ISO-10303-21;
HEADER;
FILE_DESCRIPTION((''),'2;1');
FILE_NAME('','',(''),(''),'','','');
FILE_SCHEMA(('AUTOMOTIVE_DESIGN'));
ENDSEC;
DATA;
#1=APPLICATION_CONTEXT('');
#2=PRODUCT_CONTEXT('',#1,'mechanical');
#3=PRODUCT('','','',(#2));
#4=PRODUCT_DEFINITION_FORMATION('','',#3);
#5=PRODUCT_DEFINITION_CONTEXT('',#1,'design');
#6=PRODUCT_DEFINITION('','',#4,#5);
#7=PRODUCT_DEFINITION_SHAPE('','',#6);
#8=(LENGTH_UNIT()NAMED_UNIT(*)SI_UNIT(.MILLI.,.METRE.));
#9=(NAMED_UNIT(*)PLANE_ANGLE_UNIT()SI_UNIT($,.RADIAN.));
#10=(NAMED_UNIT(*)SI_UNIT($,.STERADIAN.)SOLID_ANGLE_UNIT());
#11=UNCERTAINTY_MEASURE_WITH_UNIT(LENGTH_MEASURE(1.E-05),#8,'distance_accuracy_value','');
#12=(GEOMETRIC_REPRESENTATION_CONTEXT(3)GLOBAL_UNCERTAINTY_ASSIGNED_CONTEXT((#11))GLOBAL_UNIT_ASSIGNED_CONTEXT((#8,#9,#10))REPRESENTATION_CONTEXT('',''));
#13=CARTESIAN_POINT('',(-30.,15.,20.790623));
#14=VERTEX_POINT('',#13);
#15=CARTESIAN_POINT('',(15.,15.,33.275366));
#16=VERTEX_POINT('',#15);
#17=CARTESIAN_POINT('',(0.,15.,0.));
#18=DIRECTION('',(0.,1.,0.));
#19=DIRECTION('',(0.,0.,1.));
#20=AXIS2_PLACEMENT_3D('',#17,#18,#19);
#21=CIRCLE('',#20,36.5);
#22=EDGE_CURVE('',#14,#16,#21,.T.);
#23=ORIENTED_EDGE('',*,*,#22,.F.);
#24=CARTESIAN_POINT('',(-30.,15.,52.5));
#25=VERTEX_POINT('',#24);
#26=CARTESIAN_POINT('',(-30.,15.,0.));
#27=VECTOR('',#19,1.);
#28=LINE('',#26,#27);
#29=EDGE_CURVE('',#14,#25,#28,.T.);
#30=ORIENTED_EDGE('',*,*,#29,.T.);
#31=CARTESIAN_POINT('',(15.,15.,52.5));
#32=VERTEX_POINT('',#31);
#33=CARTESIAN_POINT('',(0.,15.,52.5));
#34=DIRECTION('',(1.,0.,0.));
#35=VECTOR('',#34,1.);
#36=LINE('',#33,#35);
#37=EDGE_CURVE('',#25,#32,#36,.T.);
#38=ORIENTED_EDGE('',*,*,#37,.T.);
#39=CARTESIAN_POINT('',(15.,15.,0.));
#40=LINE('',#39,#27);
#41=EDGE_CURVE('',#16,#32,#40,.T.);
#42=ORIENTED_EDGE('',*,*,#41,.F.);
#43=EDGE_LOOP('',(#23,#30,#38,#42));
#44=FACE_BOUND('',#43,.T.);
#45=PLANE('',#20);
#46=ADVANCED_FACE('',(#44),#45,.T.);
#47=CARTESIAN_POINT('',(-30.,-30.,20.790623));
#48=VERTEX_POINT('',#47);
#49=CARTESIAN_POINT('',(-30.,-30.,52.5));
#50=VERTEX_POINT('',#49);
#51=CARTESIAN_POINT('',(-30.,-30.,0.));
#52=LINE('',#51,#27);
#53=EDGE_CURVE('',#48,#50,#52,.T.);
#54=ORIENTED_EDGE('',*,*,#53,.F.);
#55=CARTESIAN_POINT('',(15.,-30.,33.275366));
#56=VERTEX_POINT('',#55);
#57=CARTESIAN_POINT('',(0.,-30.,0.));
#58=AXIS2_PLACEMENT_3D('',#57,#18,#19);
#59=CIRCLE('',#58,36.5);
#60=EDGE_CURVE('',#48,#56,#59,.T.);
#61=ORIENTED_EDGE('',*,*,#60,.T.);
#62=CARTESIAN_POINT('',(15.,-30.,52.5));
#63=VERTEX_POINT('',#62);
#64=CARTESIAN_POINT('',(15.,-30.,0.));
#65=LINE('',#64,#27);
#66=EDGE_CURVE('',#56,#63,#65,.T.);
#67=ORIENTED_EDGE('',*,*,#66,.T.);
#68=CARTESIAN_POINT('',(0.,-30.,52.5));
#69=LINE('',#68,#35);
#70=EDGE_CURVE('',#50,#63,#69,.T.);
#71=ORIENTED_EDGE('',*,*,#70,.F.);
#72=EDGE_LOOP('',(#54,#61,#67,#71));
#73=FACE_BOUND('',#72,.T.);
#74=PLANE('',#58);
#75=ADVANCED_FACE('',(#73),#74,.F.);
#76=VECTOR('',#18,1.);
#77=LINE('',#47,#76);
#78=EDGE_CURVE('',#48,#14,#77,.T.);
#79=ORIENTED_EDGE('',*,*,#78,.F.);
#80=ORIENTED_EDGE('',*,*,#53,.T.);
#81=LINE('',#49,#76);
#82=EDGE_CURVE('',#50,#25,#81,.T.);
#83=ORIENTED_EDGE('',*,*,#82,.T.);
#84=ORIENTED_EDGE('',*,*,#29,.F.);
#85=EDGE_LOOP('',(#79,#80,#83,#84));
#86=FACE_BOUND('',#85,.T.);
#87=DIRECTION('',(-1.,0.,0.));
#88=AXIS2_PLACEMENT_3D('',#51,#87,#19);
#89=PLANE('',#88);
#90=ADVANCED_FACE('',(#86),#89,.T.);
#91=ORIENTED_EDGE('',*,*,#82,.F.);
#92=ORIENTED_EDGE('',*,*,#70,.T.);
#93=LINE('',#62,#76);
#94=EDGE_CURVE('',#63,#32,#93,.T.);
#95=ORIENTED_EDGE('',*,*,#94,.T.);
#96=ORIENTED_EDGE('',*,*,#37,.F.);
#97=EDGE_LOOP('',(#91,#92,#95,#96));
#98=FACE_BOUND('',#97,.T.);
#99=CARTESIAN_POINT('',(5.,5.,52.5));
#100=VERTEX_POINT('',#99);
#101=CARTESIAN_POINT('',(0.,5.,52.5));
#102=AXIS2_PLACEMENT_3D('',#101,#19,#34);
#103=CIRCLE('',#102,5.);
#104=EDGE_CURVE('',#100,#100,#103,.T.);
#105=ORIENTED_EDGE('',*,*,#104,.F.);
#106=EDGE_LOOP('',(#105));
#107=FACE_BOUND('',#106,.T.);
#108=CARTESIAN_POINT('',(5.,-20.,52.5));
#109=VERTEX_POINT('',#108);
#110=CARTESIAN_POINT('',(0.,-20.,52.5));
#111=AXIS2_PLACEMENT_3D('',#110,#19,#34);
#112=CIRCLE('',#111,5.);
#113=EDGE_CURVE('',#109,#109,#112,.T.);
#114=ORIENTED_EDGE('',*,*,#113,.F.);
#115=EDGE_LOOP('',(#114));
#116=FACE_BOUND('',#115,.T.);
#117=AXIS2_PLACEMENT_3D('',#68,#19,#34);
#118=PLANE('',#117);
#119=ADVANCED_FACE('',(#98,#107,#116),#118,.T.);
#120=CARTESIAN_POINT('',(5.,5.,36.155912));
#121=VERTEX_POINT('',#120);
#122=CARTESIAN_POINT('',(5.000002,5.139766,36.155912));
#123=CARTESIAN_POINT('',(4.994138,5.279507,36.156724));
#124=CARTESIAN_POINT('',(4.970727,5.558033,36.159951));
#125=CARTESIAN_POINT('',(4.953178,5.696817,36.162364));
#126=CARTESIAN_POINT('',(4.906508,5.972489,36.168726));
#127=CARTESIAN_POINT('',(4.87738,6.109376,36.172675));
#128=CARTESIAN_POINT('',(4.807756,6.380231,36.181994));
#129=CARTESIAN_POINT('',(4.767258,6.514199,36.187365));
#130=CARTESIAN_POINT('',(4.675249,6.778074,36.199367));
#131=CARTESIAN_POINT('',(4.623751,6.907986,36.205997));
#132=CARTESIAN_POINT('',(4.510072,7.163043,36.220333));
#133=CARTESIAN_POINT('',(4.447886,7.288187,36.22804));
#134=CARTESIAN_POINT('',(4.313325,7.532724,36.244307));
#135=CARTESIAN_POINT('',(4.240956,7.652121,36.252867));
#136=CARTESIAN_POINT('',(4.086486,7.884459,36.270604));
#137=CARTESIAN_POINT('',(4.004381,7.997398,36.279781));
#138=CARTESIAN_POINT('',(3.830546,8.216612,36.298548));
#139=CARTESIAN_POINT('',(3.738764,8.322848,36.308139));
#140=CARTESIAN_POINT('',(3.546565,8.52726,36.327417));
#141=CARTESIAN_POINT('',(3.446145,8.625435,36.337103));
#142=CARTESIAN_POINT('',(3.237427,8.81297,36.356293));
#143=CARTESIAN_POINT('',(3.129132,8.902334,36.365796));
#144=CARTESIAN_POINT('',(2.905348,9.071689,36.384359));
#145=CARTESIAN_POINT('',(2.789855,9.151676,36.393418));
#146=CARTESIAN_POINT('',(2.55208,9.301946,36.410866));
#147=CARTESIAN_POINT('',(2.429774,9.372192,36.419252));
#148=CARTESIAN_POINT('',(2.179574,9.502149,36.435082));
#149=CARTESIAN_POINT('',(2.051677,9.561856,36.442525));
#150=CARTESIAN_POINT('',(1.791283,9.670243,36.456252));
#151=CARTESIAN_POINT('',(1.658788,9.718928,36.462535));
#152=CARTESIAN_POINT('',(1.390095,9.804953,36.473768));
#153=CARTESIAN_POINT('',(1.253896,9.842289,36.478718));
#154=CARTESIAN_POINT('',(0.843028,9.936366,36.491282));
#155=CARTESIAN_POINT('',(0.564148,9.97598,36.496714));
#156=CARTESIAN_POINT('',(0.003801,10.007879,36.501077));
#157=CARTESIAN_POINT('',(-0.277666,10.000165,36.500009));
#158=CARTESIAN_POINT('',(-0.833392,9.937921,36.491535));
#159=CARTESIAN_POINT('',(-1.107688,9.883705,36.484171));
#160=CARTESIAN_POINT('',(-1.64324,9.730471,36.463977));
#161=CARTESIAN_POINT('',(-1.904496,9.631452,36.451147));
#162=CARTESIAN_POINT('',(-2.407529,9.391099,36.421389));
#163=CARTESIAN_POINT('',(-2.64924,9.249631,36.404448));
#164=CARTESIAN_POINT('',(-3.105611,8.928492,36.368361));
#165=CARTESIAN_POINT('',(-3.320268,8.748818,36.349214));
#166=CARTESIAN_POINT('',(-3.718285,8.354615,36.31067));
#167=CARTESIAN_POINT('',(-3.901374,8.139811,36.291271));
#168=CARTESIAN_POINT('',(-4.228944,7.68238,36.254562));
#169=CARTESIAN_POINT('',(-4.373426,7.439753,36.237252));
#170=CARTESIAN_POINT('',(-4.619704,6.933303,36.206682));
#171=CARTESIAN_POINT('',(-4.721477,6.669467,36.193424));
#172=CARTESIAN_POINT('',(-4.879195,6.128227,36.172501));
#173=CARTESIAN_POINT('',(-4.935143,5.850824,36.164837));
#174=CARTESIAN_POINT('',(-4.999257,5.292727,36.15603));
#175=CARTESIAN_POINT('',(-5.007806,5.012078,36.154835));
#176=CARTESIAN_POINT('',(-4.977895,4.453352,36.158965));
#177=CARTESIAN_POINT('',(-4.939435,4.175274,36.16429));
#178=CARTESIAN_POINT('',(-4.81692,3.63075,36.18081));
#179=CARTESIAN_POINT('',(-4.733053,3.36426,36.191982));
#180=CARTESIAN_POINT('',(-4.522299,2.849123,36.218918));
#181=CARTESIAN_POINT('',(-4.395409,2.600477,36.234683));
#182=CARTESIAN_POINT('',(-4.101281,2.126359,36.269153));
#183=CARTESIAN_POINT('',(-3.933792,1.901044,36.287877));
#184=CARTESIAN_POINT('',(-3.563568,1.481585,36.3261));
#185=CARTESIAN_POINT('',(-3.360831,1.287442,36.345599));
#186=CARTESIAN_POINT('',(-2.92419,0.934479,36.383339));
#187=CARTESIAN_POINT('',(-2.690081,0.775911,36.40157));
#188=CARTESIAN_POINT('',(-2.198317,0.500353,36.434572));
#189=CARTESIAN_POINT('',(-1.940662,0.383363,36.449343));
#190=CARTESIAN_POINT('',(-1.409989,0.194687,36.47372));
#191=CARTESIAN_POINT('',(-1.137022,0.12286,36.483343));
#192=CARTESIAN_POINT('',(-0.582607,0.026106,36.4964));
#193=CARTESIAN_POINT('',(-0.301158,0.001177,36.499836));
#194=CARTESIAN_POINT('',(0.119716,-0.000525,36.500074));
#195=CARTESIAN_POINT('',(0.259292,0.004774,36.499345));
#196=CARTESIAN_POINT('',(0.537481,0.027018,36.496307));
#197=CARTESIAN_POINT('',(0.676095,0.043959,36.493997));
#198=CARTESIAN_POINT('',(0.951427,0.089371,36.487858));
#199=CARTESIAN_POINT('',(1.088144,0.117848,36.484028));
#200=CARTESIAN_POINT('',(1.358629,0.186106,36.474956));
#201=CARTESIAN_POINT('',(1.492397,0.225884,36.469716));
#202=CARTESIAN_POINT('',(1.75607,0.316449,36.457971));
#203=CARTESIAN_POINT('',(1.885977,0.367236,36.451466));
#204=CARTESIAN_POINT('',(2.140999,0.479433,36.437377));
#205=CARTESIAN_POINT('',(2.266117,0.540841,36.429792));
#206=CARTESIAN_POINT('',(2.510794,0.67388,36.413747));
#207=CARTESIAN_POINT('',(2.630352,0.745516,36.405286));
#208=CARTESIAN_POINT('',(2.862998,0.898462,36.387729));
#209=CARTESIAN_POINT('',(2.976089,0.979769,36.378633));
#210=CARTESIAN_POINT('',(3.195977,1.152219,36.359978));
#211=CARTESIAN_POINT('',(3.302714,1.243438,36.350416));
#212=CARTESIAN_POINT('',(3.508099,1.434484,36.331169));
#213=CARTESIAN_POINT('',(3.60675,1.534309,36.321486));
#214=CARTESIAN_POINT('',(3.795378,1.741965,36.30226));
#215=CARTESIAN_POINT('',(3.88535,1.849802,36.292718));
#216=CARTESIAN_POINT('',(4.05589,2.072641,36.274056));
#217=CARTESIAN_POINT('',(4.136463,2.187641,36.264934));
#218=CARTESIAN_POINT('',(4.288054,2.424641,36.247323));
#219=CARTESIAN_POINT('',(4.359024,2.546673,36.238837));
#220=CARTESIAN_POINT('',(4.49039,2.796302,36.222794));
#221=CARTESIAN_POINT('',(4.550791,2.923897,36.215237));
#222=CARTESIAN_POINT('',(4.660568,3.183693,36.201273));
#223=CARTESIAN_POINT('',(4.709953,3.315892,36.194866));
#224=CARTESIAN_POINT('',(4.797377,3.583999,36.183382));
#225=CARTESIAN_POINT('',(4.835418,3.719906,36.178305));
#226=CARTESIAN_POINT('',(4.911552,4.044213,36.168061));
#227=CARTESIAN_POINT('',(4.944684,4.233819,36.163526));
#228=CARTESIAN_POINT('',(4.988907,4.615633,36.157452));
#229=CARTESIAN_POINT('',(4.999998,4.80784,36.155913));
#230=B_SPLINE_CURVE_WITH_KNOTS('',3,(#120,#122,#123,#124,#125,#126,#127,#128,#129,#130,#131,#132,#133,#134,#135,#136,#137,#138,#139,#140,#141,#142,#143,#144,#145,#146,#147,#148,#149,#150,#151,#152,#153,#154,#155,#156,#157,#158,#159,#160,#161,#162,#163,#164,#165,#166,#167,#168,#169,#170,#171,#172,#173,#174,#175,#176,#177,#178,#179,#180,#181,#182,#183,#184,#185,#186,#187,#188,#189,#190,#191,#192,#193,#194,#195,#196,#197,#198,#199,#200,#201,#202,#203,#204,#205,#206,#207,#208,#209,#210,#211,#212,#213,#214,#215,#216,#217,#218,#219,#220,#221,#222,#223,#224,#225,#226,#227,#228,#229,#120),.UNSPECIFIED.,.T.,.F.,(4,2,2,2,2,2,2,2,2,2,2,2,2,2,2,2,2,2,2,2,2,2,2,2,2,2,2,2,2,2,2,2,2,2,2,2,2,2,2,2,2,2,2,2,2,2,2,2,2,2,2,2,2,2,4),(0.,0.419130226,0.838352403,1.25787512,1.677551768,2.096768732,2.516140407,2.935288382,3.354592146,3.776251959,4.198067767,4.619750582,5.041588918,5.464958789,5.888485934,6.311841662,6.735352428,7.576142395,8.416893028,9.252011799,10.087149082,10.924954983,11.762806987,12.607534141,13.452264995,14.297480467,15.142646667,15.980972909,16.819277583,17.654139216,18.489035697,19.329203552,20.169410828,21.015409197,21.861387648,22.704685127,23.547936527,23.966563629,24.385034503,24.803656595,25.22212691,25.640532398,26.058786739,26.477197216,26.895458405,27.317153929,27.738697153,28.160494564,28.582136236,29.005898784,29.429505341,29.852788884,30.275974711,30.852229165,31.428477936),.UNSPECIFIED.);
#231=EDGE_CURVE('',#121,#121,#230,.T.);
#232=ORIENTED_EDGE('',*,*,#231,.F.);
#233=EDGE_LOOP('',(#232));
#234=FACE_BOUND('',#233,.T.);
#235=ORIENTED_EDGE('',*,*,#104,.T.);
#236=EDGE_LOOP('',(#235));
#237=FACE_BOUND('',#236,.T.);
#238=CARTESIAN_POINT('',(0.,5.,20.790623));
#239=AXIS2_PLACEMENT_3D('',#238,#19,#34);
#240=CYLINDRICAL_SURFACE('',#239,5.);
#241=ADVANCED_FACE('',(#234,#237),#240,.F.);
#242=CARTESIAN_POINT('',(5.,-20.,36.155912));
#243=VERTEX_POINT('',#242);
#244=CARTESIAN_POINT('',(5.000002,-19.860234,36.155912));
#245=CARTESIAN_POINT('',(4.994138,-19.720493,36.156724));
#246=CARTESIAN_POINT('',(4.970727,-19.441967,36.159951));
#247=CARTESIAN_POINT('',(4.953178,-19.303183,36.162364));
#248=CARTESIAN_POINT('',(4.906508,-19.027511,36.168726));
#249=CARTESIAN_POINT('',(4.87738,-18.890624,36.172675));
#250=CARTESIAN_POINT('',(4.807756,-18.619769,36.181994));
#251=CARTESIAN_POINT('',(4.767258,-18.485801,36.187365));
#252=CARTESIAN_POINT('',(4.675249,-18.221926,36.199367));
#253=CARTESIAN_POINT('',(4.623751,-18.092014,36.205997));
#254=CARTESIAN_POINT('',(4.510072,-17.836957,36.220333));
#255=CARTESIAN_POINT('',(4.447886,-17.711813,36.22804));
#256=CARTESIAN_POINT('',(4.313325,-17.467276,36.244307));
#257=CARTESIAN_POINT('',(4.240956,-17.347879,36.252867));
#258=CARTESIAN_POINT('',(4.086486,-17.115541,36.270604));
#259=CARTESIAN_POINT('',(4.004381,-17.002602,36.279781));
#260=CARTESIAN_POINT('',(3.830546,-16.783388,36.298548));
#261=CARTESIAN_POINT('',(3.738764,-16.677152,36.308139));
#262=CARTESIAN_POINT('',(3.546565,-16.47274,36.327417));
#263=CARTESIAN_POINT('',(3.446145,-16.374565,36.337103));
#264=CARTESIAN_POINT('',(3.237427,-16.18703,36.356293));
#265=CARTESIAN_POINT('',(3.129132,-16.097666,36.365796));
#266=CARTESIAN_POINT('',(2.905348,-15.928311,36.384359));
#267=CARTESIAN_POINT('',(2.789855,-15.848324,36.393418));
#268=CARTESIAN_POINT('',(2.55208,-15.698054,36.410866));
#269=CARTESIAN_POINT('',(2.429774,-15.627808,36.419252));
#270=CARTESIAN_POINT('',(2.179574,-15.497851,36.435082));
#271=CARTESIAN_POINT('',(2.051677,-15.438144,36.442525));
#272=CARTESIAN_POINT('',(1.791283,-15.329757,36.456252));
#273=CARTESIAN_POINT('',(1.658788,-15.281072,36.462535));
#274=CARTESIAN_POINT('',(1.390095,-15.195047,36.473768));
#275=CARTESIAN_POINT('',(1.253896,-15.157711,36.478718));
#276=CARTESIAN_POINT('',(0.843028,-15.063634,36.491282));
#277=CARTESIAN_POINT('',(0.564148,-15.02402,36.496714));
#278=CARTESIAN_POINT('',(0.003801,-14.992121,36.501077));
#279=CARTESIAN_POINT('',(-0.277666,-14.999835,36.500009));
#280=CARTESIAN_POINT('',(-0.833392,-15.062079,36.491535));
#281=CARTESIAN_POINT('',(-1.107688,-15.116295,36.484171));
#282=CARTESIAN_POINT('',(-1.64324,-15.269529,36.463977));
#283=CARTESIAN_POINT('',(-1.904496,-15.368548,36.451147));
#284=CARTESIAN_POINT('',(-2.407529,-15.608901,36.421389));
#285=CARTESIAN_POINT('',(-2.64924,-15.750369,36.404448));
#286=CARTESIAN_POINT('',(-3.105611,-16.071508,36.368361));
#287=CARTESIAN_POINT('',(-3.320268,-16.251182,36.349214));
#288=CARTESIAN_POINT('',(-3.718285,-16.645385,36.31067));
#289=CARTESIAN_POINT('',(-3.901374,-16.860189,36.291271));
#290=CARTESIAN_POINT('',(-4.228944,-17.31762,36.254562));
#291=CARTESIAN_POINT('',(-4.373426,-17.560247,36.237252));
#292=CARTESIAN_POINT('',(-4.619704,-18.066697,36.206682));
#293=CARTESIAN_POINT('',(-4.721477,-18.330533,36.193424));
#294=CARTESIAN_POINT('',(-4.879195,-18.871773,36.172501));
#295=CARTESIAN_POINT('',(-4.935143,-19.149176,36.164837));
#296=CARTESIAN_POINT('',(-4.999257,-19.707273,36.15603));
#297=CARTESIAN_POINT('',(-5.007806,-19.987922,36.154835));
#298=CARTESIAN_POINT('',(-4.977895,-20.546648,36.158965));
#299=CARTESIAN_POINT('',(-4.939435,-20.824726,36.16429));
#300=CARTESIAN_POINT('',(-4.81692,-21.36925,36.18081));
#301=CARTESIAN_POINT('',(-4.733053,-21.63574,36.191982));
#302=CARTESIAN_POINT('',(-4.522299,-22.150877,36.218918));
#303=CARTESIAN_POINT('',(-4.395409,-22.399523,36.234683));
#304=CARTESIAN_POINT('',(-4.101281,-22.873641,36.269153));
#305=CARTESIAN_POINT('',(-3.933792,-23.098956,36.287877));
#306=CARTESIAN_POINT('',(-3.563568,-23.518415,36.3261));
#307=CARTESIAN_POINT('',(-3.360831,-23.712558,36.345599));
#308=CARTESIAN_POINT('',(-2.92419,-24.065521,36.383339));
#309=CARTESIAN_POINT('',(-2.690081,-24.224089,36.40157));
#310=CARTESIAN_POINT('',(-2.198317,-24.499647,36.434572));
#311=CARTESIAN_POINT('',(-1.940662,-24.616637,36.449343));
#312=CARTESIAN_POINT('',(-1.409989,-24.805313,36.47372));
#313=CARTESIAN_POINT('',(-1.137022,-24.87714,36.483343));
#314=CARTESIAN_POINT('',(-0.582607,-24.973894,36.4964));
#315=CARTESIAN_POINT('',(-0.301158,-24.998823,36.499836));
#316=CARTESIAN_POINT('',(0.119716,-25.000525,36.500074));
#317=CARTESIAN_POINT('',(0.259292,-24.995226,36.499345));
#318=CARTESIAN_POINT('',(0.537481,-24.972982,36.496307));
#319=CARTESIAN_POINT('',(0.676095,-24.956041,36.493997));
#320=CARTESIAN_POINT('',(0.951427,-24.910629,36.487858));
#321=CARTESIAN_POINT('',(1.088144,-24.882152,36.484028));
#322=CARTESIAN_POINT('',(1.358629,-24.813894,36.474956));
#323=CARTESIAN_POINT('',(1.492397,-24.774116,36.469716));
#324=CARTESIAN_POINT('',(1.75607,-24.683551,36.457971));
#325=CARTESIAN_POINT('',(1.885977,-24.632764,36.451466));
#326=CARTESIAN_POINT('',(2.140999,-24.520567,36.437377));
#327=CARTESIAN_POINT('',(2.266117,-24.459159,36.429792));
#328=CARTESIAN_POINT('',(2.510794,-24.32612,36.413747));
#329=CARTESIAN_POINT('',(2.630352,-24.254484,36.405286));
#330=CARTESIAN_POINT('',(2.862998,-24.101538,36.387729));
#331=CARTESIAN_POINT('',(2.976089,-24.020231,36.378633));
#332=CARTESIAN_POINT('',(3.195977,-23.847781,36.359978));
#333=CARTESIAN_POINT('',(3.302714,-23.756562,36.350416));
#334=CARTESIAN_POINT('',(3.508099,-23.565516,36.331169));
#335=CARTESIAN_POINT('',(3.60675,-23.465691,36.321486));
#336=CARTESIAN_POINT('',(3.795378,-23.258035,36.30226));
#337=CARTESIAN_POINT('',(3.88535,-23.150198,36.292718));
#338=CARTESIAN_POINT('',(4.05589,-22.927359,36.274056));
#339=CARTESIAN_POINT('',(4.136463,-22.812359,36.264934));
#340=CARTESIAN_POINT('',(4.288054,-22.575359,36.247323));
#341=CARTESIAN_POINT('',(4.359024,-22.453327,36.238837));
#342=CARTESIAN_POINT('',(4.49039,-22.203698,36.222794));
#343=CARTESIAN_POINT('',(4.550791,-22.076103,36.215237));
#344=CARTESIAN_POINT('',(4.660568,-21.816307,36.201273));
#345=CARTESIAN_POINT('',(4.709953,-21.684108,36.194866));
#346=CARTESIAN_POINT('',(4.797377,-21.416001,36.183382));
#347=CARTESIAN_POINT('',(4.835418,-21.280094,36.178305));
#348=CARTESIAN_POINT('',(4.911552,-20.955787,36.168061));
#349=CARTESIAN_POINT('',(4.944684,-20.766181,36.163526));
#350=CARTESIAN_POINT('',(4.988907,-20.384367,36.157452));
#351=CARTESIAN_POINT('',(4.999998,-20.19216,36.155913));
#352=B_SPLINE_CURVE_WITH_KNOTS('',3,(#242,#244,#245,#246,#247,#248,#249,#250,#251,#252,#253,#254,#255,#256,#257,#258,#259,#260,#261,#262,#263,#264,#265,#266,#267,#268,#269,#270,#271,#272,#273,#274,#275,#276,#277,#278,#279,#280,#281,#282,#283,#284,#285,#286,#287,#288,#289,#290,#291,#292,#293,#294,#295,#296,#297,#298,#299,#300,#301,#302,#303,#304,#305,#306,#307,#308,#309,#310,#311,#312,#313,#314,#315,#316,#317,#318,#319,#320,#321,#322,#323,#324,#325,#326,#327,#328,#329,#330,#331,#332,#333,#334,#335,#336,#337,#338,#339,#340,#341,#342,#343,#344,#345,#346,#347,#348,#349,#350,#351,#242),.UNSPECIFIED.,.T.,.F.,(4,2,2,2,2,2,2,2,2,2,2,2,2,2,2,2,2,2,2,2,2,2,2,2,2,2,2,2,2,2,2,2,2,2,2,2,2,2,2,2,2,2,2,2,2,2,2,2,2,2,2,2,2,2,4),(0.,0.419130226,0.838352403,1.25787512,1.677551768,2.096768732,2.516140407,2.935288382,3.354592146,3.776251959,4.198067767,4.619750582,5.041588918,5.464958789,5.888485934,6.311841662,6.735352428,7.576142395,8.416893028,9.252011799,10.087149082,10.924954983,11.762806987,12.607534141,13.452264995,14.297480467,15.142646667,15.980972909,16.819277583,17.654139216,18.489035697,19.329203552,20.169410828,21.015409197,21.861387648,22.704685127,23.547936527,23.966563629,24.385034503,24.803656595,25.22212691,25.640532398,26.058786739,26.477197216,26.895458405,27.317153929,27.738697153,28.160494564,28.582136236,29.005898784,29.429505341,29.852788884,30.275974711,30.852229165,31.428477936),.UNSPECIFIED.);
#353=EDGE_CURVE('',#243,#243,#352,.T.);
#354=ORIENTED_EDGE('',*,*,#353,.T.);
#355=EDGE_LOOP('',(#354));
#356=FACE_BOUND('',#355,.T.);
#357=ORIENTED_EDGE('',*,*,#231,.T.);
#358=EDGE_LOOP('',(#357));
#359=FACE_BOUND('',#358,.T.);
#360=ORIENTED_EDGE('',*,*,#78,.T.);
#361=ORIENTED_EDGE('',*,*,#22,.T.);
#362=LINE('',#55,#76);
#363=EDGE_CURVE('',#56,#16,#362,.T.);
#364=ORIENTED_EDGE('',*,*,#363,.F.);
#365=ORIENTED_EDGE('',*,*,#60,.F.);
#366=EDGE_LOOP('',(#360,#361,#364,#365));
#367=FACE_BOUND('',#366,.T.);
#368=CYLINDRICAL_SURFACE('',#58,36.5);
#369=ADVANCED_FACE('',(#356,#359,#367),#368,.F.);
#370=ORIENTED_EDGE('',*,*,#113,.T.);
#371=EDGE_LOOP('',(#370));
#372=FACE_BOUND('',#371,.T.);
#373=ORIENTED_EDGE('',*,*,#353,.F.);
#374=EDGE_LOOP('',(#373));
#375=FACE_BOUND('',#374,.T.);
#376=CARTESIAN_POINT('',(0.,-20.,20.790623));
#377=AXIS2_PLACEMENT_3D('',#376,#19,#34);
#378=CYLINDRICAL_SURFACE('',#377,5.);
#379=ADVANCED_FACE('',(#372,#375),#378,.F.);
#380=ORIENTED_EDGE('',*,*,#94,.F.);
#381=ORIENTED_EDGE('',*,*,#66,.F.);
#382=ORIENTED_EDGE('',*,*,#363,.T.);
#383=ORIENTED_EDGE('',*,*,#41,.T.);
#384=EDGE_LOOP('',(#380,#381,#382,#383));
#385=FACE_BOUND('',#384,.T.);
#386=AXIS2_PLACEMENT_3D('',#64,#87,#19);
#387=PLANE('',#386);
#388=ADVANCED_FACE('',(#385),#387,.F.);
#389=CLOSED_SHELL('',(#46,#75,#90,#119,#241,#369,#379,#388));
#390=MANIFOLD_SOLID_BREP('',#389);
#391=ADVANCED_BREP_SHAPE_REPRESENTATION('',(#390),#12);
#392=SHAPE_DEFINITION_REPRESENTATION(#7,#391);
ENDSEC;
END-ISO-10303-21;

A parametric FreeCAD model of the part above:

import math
import FreeCAD as App
import Part
import Sketcher

V = App.Vector

doc = App.newDocument("Part")
body = doc.addObject("PartDesign::Body", "Body")

# Sketch on XZ plane
sketch1 = body.newObject("Sketcher::SketchObject", "Sketch")
sketch1.AttachmentSupport = (doc.getObject("XZ_Plane"), [""])
sketch1.MapMode = "FlatFace"
sketch1.addGeometry(Part.ArcOfCircle(Part.Circle(V(0, 0, 0), V(0, 0, 1), 36), math.radians(66), math.radians(145)), False)
sketch1.addGeometry(Part.LineSegment(V(-30, 21, 0), V(-30, 52, 0)), False)
sketch1.addGeometry(Part.LineSegment(V(-30, 52, 0), V(15, 52, 0)), False)
sketch1.addGeometry(Part.LineSegment(V(15, 52, 0), V(15, 33, 0)), False)
sketch1.addConstraint(Sketcher.Constraint("Coincident", 0, 2, 1, 1))
sketch1.addConstraint(Sketcher.Constraint("Coincident", 1, 2, 2, 1))
sketch1.addConstraint(Sketcher.Constraint("Coincident", 2, 2, 3, 1))
sketch1.addConstraint(Sketcher.Constraint("Coincident", 3, 2, 0, 1))
sketch1.addConstraint(Sketcher.Constraint("Vertical", 1))
sketch1.addConstraint(Sketcher.Constraint("Horizontal", 2))
sketch1.addConstraint(Sketcher.Constraint("Vertical", 3))
sketch1.addConstraint(Sketcher.Constraint("Coincident", 0, 3, -1, 1))
sketch1.addConstraint(Sketcher.Constraint("Radius", 0, 36.5))
sketch1.addConstraint(Sketcher.Constraint("DistanceX", 2, 1, 2, 2, 45.0))
sketch1.addConstraint(Sketcher.Constraint("DistanceX", 0, 2, -1, 1, 30.0))
sketch1.addConstraint(Sketcher.Constraint("DistanceY", -1, 1, 1, 2, 52.5))
pad1 = body.newObject("PartDesign::Pad", "Pad")
pad1.Profile = sketch1
pad1.Type = "TwoLengths"
pad1.Length = 15
pad1.Length2 = 30
pad1.Reversed = True

# Sketch on XY plane
sketch2 = body.newObject("Sketcher::SketchObject", "Sketch001")
sketch2.AttachmentSupport = (doc.getObject("XY_Plane"), [""])
sketch2.MapMode = "FlatFace"
sketch2.AttachmentOffset = App.Placement(V(0, 0, 52.5), App.Rotation())
sketch2.addGeometry(Part.Circle(V(0, -20, 0), V(0, 0, 1), 5), False)
sketch2.addGeometry(Part.Circle(V(0, 5, 0), V(0, 0, 1), 5), False)
sketch2.addConstraint(Sketcher.Constraint("Equal", 0, 1))
sketch2.addConstraint(Sketcher.Constraint("PointOnObject", 0, 3, -2))
sketch2.addConstraint(Sketcher.Constraint("PointOnObject", 1, 3, -2))
sketch2.addConstraint(Sketcher.Constraint("Diameter", 0, 10.0))
sketch2.addConstraint(Sketcher.Constraint("DistanceY", 0, 3, -1, 1, 20.0))
sketch2.addConstraint(Sketcher.Constraint("DistanceY", -1, 1, 1, 3, 5.0))
pocket1 = body.newObject("PartDesign::Pocket", "Pocket")
pocket1.Profile = sketch2
pocket1.Type = "ThroughAll"

doc.recompute()
